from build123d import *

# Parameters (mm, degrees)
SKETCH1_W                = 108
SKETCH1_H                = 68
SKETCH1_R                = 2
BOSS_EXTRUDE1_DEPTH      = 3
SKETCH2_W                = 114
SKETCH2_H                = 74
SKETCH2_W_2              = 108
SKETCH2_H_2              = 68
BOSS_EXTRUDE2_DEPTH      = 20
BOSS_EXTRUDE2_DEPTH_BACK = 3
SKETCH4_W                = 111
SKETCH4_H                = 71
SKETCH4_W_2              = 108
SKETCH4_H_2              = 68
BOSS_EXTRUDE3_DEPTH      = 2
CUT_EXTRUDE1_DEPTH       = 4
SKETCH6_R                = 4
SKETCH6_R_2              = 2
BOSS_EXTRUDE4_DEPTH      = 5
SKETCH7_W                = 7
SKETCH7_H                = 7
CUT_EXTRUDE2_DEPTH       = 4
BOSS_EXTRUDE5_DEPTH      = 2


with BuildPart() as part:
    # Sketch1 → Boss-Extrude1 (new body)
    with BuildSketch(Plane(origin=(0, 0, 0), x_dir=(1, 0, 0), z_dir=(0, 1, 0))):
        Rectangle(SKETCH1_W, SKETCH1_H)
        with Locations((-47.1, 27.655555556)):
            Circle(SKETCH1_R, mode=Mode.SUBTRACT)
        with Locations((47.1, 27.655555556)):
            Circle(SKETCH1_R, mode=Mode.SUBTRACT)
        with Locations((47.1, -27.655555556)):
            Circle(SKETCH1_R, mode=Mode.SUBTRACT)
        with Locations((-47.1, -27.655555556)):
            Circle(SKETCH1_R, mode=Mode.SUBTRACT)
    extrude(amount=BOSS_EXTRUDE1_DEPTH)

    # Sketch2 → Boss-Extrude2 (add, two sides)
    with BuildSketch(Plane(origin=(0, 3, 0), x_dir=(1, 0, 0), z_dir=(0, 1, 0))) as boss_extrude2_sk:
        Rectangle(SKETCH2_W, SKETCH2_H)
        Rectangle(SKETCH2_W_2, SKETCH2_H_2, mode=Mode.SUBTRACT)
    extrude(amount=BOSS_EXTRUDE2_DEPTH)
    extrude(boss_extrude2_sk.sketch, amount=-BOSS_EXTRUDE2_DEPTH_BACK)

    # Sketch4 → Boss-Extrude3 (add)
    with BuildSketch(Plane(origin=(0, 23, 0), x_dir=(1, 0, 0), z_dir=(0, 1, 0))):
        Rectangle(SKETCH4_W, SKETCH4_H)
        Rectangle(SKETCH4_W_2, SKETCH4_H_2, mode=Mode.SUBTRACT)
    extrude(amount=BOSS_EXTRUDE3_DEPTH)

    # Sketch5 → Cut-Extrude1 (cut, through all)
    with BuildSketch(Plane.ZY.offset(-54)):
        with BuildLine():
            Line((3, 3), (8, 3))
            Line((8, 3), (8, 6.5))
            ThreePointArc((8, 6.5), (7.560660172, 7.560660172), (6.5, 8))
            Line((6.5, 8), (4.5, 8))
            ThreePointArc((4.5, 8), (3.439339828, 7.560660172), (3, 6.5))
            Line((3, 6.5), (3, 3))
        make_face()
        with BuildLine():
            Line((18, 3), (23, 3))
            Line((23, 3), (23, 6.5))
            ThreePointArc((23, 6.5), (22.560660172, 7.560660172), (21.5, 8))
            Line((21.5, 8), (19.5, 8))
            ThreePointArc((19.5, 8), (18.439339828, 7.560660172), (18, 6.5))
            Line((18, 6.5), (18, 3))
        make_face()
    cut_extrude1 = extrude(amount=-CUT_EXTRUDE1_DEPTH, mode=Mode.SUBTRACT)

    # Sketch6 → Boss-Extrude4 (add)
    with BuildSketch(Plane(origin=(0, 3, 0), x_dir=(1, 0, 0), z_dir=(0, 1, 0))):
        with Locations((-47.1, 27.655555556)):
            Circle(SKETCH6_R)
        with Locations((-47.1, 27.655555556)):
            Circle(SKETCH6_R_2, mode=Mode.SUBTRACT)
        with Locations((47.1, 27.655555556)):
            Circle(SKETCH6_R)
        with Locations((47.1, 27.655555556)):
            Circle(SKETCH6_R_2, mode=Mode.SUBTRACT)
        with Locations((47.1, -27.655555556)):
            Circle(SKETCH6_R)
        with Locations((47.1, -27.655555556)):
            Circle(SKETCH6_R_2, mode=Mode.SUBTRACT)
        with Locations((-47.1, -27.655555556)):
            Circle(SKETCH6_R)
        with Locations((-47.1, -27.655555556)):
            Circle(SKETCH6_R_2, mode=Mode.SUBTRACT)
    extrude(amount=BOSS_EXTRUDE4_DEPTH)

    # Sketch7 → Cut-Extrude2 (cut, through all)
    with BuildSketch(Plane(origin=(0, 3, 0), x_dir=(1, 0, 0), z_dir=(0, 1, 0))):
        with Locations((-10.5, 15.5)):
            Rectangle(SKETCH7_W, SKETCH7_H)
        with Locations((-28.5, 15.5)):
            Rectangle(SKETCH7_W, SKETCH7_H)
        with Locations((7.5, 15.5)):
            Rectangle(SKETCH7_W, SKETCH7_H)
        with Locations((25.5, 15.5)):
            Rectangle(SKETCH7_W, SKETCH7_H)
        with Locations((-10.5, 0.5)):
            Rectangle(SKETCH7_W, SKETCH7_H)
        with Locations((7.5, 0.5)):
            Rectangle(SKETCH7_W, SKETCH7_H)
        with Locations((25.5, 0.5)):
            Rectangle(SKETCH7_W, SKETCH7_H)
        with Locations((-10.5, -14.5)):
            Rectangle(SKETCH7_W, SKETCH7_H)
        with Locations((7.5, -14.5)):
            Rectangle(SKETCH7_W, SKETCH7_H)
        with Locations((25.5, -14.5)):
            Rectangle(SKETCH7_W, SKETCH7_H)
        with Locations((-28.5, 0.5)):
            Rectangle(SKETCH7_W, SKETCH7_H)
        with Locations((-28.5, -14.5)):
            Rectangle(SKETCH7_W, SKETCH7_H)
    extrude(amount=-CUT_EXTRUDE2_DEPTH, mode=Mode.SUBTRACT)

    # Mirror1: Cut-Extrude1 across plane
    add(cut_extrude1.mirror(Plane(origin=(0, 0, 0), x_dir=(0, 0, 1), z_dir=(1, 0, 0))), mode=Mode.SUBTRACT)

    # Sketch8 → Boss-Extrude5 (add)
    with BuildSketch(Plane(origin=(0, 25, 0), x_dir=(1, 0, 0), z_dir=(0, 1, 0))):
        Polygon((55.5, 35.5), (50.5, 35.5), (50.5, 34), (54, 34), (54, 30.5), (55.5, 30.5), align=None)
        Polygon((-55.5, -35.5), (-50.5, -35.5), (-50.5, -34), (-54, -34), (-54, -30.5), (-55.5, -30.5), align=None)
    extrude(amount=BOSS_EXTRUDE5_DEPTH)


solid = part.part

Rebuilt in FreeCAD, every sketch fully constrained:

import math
import FreeCAD as App
import Part
import Sketcher

V = App.Vector


def add_polygon(sketch, points):
    """Adds a closed chain of lines whose ends are joined by coincident constraints."""
    first, n = sketch.GeometryCount, len(points)
    for a, b in zip(points, points[1:] + points[:1]):
        sketch.addGeometry(Part.LineSegment(App.Vector(*a, 0), App.Vector(*b, 0)), False)
    for i in range(n):
        sketch.addConstraint(Sketcher.Constraint("Coincident", first + i, 2, first + (i + 1) % n, 1))

doc = App.newDocument("Part")
params = doc.addObject("Spreadsheet::Sheet", "Params")
for row, (alias, value) in enumerate([
    ("sketch1_diameter", "4 mm"),
    ("sketch1_width", "108 mm"),
    ("sketch1_height", "68 mm"),
    ("pad1_length", "3 mm"),
    ("sketch2_width", "114 mm"),
    ("sketch2_width2", "108 mm"),
    ("sketch2_height", "74 mm"),
    ("sketch2_height2", "68 mm"),
    ("pad2_length", "20 mm"),
    ("pad2_length2", "3 mm"),
    ("sketch3_width", "111 mm"),
    ("sketch3_width2", "108 mm"),
    ("sketch3_height", "71 mm"),
    ("sketch3_height2", "68 mm"),
    ("pad3_length", "2 mm"),
    ("sketch4_radius", "1.5 mm"),
    ("sketch4_height", "5 mm"),
    ("sketch4_width", "3.5 mm"),
    ("sketch5_diameter", "8 mm"),
    ("sketch5_diameter2", "4 mm"),
    ("pad4_length", "5 mm"),
    ("sketch6_width", "7 mm"),
    ("sketch7_width", "5 mm"),
    ("sketch7_width2", "3.5 mm"),
    ("pad5_length", "2 mm"),
], start=1):
    params.set(f"A{row}", alias)
    params.set(f"B{row}", "=" + value)
    params.setAlias(f"B{row}", alias)

body = doc.addObject("PartDesign::Body", "Body")

# Sketch on XZ plane
sketch1 = body.newObject("Sketcher::SketchObject", "Sketch")
sketch1.AttachmentSupport = (doc.getObject("XZ_Plane"), [""])
sketch1.MapMode = "FlatFace"
add_polygon(sketch1, [(-54, -34), (-54, 34), (54, 34), (54, -34)])  # lines 0-3
sketch1.addGeometry(Part.Circle(V(-47.1, 27.7, 0), V(0, 0, 1), 2), False)  # 4
sketch1.addGeometry(Part.Circle(V(47.1, 27.7, 0), V(0, 0, 1), 2), False)  # 5
sketch1.addGeometry(Part.Circle(V(-47.1, -27.7, 0), V(0, 0, 1), 2), False)  # 6
sketch1.addGeometry(Part.Circle(V(47.1, -27.7, 0), V(0, 0, 1), 2), False)  # 7
sketch1.addConstraint([
    Sketcher.Constraint("Vertical", 0),
    Sketcher.Constraint("Horizontal", 1),
    Sketcher.Constraint("Vertical", 2),
    Sketcher.Constraint("Horizontal", 3),
    Sketcher.Constraint("Equal", 4, 5),
    Sketcher.Constraint("Equal", 5, 6),
    Sketcher.Constraint("Equal", 6, 7),
    Sketcher.Constraint("Symmetric", 5, 3, 6, 3, -1, 1),
    Sketcher.Constraint("Symmetric", 4, 3, 7, 3, -1, 1),
    Sketcher.Constraint("Symmetric", 0, 2, 2, 2, -1, 1),
    Sketcher.Constraint("Symmetric", 4, 3, 5, 3, -2),
    Sketcher.Constraint("Diameter", 4, 4.0),
    Sketcher.Constraint("DistanceX", 1, 1, 1, 2, 108.0),
    Sketcher.Constraint("DistanceY", 0, 1, 0, 2, 68.0),
    Sketcher.Constraint("DistanceX", 4, 3, -1, 1, 47.1),
    Sketcher.Constraint("DistanceY", 6, 3, 4, 3, 55.311111),
])
sketch1.setExpression("Constraints[15]", "Params.sketch1_diameter")
sketch1.setExpression("Constraints[16]", "Params.sketch1_width")
sketch1.setExpression("Constraints[17]", "Params.sketch1_height")
pad1 = body.newObject("PartDesign::Pad", "Pad")
pad1.Profile = sketch1
pad1.setExpression("Length", "Params.pad1_length")
pad1.Reversed = True

# Sketch on XZ plane
sketch2 = body.newObject("Sketcher::SketchObject", "Sketch001")
sketch2.AttachmentSupport = (doc.getObject("XZ_Plane"), [""])
sketch2.MapMode = "FlatFace"
sketch2.AttachmentOffset = App.Placement(V(0, 0, -3), App.Rotation())
add_polygon(sketch2, [(-57, -37), (-57, 37), (57, 37), (57, -37)])  # lines 0-3
add_polygon(sketch2, [(54, 34), (-54, 34), (-54, -34), (54, -34)])  # lines 4-7
sketch2.addConstraint([
    Sketcher.Constraint("Vertical", 0),
    Sketcher.Constraint("Horizontal", 1),
    Sketcher.Constraint("Vertical", 2),
    Sketcher.Constraint("Horizontal", 3),
    Sketcher.Constraint("Horizontal", 4),
    Sketcher.Constraint("Vertical", 5),
    Sketcher.Constraint("Horizontal", 6),
    Sketcher.Constraint("Vertical", 7),
    Sketcher.Constraint("Symmetric", 0, 2, 2, 2, -1, 1),
    Sketcher.Constraint("Symmetric", 4, 2, 6, 2, -1, 1),
    Sketcher.Constraint("DistanceX", 1, 1, 1, 2, 114.0),
    Sketcher.Constraint("DistanceX", 4, 2, 4, 1, 108.0),
    Sketcher.Constraint("DistanceY", 0, 1, 0, 2, 74.0),
    Sketcher.Constraint("DistanceY", 5, 2, 5, 1, 68.0),
])
sketch2.setExpression("Constraints[18]", "Params.sketch2_width")
sketch2.setExpression("Constraints[19]", "Params.sketch2_width2")
sketch2.setExpression("Constraints[20]", "Params.sketch2_height")
sketch2.setExpression("Constraints[21]", "Params.sketch2_height2")
pad2 = body.newObject("PartDesign::Pad", "Pad001")
pad2.Profile = sketch2
pad2.Type = "TwoLengths"
pad2.setExpression("Length", "Params.pad2_length")
pad2.setExpression("Length2", "Params.pad2_length2")
pad2.Reversed = True

# Sketch on XZ plane
sketch3 = body.newObject("Sketcher::SketchObject", "Sketch002")
sketch3.AttachmentSupport = (doc.getObject("XZ_Plane"), [""])
sketch3.MapMode = "FlatFace"
sketch3.AttachmentOffset = App.Placement(V(0, 0, -23), App.Rotation())
add_polygon(sketch3, [(-56, -36), (-56, 36), (56, 36), (56, -36)])  # lines 0-3
add_polygon(sketch3, [(54, 34), (-54, 34), (-54, -34), (54, -34)])  # lines 4-7
sketch3.addConstraint([
    Sketcher.Constraint("Vertical", 0),
    Sketcher.Constraint("Horizontal", 1),
    Sketcher.Constraint("Vertical", 2),
    Sketcher.Constraint("Horizontal", 3),
    Sketcher.Constraint("Horizontal", 4),
    Sketcher.Constraint("Vertical", 5),
    Sketcher.Constraint("Horizontal", 6),
    Sketcher.Constraint("Vertical", 7),
    Sketcher.Constraint("Symmetric", 0, 2, 2, 2, -1, 1),
    Sketcher.Constraint("Symmetric", 4, 2, 6, 2, -1, 1),
    Sketcher.Constraint("DistanceX", 1, 1, 1, 2, 111.0),
    Sketcher.Constraint("DistanceX", 4, 2, 4, 1, 108.0),
    Sketcher.Constraint("DistanceY", 0, 1, 0, 2, 71.0),
    Sketcher.Constraint("DistanceY", 5, 2, 5, 1, 68.0),
])
sketch3.setExpression("Constraints[18]", "Params.sketch3_width")
sketch3.setExpression("Constraints[19]", "Params.sketch3_width2")
sketch3.setExpression("Constraints[20]", "Params.sketch3_height")
sketch3.setExpression("Constraints[21]", "Params.sketch3_height2")
pad3 = body.newObject("PartDesign::Pad", "Pad002")
pad3.Profile = sketch3
pad3.setExpression("Length", "Params.pad3_length")
pad3.Reversed = True

# Sketch on YZ plane
sketch4 = body.newObject("Sketcher::SketchObject", "Sketch003")
sketch4.AttachmentSupport = (doc.getObject("YZ_Plane"), [""])
sketch4.MapMode = "FlatFace"
sketch4.AttachmentOffset = App.Placement(V(0, 0, 54), App.Rotation())
sketch4.addGeometry([
    Part.LineSegment(V(3, 3, 0), V(3, 8, 0)),  # 0
    Part.LineSegment(V(3, 8, 0), V(6.5, 8, 0)),  # 1
    Part.ArcOfCircle(Part.Circle(V(6.5, 6.5, 0), V(0, 0, 1), 1.5), math.radians(0), math.radians(90)),  # 2
    Part.LineSegment(V(8, 6.5, 0), V(8, 4.5, 0)),  # 3
    Part.ArcOfCircle(Part.Circle(V(6.5, 4.5, 0), V(0, 0, 1), 1.5), math.radians(-90), math.radians(0)),  # 4
    Part.LineSegment(V(6.5, 3, 0), V(3, 3, 0)),  # 5
    Part.LineSegment(V(3, 18, 0), V(3, 23, 0)),  # 6
    Part.LineSegment(V(3, 23, 0), V(6.5, 23, 0)),  # 7
    Part.ArcOfCircle(Part.Circle(V(6.5, 21.5, 0), V(0, 0, 1), 1.5), math.radians(0), math.radians(90)),  # 8
    Part.LineSegment(V(8, 21.5, 0), V(8, 19.5, 0)),  # 9
    Part.ArcOfCircle(Part.Circle(V(6.5, 19.5, 0), V(0, 0, 1), 1.5), math.radians(-90), math.radians(0)),  # 10
    Part.LineSegment(V(6.5, 18, 0), V(3, 18, 0)),  # 11
], False)
sketch4.addConstraint([
    Sketcher.Constraint("Coincident", 0, 2, 1, 1),
    Sketcher.Constraint("Tangent", 1, 2, 2, 2),
    Sketcher.Constraint("Tangent", 2, 1, 3, 1),
    Sketcher.Constraint("Tangent", 3, 2, 4, 2),
    Sketcher.Constraint("Tangent", 4, 1, 5, 1),
    Sketcher.Constraint("Coincident", 5, 2, 0, 1),
    Sketcher.Constraint("Coincident", 6, 2, 7, 1),
    Sketcher.Constraint("Tangent", 7, 2, 8, 2),
    Sketcher.Constraint("Tangent", 8, 1, 9, 1),
    Sketcher.Constraint("Tangent", 9, 2, 10, 2),
    Sketcher.Constraint("Tangent", 10, 1, 11, 1),
    Sketcher.Constraint("Coincident", 11, 2, 6, 1),
    Sketcher.Constraint("Vertical", 0),
    Sketcher.Constraint("Horizontal", 1),
    Sketcher.Constraint("Vertical", 3),
    Sketcher.Constraint("Horizontal", 5),
    Sketcher.Constraint("Vertical", 6),
    Sketcher.Constraint("Horizontal", 7),
    Sketcher.Constraint("Vertical", 9),
    Sketcher.Constraint("Horizontal", 11),
    Sketcher.Constraint("Equal", 2, 4),
    Sketcher.Constraint("Equal", 4, 8),
    Sketcher.Constraint("Equal", 8, 10),
    Sketcher.Constraint("Vertical", 4, 3, 8, 3),
    Sketcher.Constraint("Vertical", 5, 2, 6, 2),
    Sketcher.Constraint("Equal", 0, 6),
    Sketcher.Constraint("Radius", 2, 1.5),
    Sketcher.Constraint("DistanceY", 0, 1, 0, 2, 5.0),
    Sketcher.Constraint("DistanceX", 1, 1, 1, 2, 3.5),
    Sketcher.Constraint("DistanceX", -1, 1, 0, 2, 3.0),
    Sketcher.Constraint("DistanceY", -1, 1, 0, 2, 8.0),
    Sketcher.Constraint("DistanceY", -1, 1, 6, 2, 23.0),
])
sketch4.setExpression("Constraints[26]", "Params.sketch4_radius")
sketch4.setExpression("Constraints[27]", "Params.sketch4_height")
sketch4.setExpression("Constraints[28]", "Params.sketch4_width")
pocket1 = body.newObject("PartDesign::Pocket", "Pocket")
pocket1.Profile = sketch4
pocket1.Type = "ThroughAll"
pocket1.Reversed = True

# Sketch on XZ plane
sketch5 = body.newObject("Sketcher::SketchObject", "Sketch004")
sketch5.AttachmentSupport = (doc.getObject("XZ_Plane"), [""])
sketch5.MapMode = "FlatFace"
sketch5.AttachmentOffset = App.Placement(V(0, 0, -3), App.Rotation())
sketch5.addGeometry([
    Part.Circle(V(-47.1, -27.7, 0), V(0, 0, 1), 4),  # 0
    Part.Circle(V(-47.1, -27.7, 0), V(0, 0, 1), 2),  # 1
    Part.Circle(V(47.1, -27.7, 0), V(0, 0, 1), 4),  # 2
    Part.Circle(V(47.1, -27.7, 0), V(0, 0, 1), 2),  # 3
    Part.Circle(V(47.1, 27.7, 0), V(0, 0, 1), 4),  # 4
    Part.Circle(V(47.1, 27.7, 0), V(0, 0, 1), 2),  # 5
    Part.Circle(V(-47.1, 27.7, 0), V(0, 0, 1), 4),  # 6
    Part.Circle(V(-47.1, 27.7, 0), V(0, 0, 1), 2),  # 7
], False)
sketch5.addConstraint([
    Sketcher.Constraint("Coincident", 1, 3, 0, 3),
    Sketcher.Constraint("Coincident", 3, 3, 2, 3),
    Sketcher.Constraint("Coincident", 5, 3, 4, 3),
    Sketcher.Constraint("Coincident", 7, 3, 6, 3),
    Sketcher.Constraint("Equal", 0, 2),
    Sketcher.Constraint("Equal", 1, 3),
    Sketcher.Constraint("Equal", 2, 4),
    Sketcher.Constraint("Equal", 3, 5),
    Sketcher.Constraint("Equal", 4, 6),
    Sketcher.Constraint("Equal", 5, 7),
    Sketcher.Constraint("Symmetric", 0, 3, 4, 3, -1, 1),
    Sketcher.Constraint("Symmetric", 2, 3, 6, 3, -1, 1),
    Sketcher.Constraint("Symmetric", 0, 3, 2, 3, -2),
    Sketcher.Constraint("Diameter", 0, 8.0),
    Sketcher.Constraint("Diameter", 1, 4.0),
    Sketcher.Constraint("DistanceX", 0, 3, -1, 1, 47.1),
    Sketcher.Constraint("DistanceY", 2, 3, 4, 3, 55.311111),
])
sketch5.setExpression("Constraints[13]", "Params.sketch5_diameter")
sketch5.setExpression("Constraints[14]", "Params.sketch5_diameter2")
pad4 = body.newObject("PartDesign::Pad", "Pad003")
pad4.Profile = sketch5
pad4.setExpression("Length", "Params.pad4_length")
pad4.Reversed = True

# Sketch on XZ plane
sketch6 = body.newObject("Sketcher::SketchObject", "Sketch005")
sketch6.AttachmentSupport = (doc.getObject("XZ_Plane"), [""])
sketch6.MapMode = "FlatFace"
sketch6.AttachmentOffset = App.Placement(V(0, 0, -3), App.Rotation())
add_polygon(sketch6, [(-14, -19), (-14, -12), (-7, -12), (-7, -19)])  # lines 0-3
add_polygon(sketch6, [(-32, -19), (-32, -12), (-25, -12), (-25, -19)])  # lines 4-7
add_polygon(sketch6, [(4, -19), (4, -12), (11, -12), (11, -19)])  # lines 8-11
add_polygon(sketch6, [(22, -19), (22, -12), (29, -12), (29, -19)])  # lines 12-15
add_polygon(sketch6, [(-14, -4), (-14, 3), (-7, 3), (-7, -4)])  # lines 16-19
add_polygon(sketch6, [(4, -4), (4, 3), (11, 3), (11, -4)])  # lines 20-23
add_polygon(sketch6, [(22, -4), (22, 3), (29, 3), (29, -4)])  # lines 24-27
add_polygon(sketch6, [(-14, 11), (-14, 18), (-7, 18), (-7, 11)])  # lines 28-31
add_polygon(sketch6, [(4, 11), (4, 18), (11, 18), (11, 11)])  # lines 32-35
add_polygon(sketch6, [(22, 11), (22, 18), (29, 18), (29, 11)])  # lines 36-39
add_polygon(sketch6, [(-32, -4), (-32, 3), (-25, 3), (-25, -4)])  # lines 40-43
add_polygon(sketch6, [(-32, 11), (-32, 18), (-25, 18), (-25, 11)])  # lines 44-47
sketch6.addConstraint([
    Sketcher.Constraint("Vertical", 0),
    Sketcher.Constraint("Horizontal", 1),
    Sketcher.Constraint("Vertical", 2),
    Sketcher.Constraint("Horizontal", 3),
    Sketcher.Constraint("Vertical", 4),
    Sketcher.Constraint("Horizontal", 5),
    Sketcher.Constraint("Vertical", 6),
    Sketcher.Constraint("Horizontal", 7),
    Sketcher.Constraint("Vertical", 8),
    Sketcher.Constraint("Horizontal", 9),
    Sketcher.Constraint("Vertical", 10),
    Sketcher.Constraint("Horizontal", 11),
    Sketcher.Constraint("Vertical", 12),
    Sketcher.Constraint("Horizontal", 13),
    Sketcher.Constraint("Vertical", 14),
    Sketcher.Constraint("Horizontal", 15),
    Sketcher.Constraint("Vertical", 16),
    Sketcher.Constraint("Horizontal", 17),
    Sketcher.Constraint("Vertical", 18),
    Sketcher.Constraint("Horizontal", 19),
    Sketcher.Constraint("Vertical", 20),
    Sketcher.Constraint("Horizontal", 21),
    Sketcher.Constraint("Vertical", 22),
    Sketcher.Constraint("Horizontal", 23),
    Sketcher.Constraint("Vertical", 24),
    Sketcher.Constraint("Horizontal", 25),
    Sketcher.Constraint("Vertical", 26),
    Sketcher.Constraint("Horizontal", 27),
    Sketcher.Constraint("Vertical", 28),
    Sketcher.Constraint("Horizontal", 29),
    Sketcher.Constraint("Vertical", 30),
    Sketcher.Constraint("Horizontal", 31),
    Sketcher.Constraint("Vertical", 32),
    Sketcher.Constraint("Horizontal", 33),
    Sketcher.Constraint("Vertical", 34),
    Sketcher.Constraint("Horizontal", 35),
    Sketcher.Constraint("Vertical", 36),
    Sketcher.Constraint("Horizontal", 37),
    Sketcher.Constraint("Vertical", 38),
    Sketcher.Constraint("Horizontal", 39),
    Sketcher.Constraint("Vertical", 40),
    Sketcher.Constraint("Horizontal", 41),
    Sketcher.Constraint("Vertical", 42),
    Sketcher.Constraint("Horizontal", 43),
    Sketcher.Constraint("Vertical", 44),
    Sketcher.Constraint("Horizontal", 45),
    Sketcher.Constraint("Vertical", 46),
    Sketcher.Constraint("Horizontal", 47),
    Sketcher.Constraint("Horizontal", 1, 2, 4, 2),
    Sketcher.Constraint("Horizontal", 3, 2, 6, 2),
    Sketcher.Constraint("Horizontal", 5, 2, 8, 2),
    Sketcher.Constraint("Horizontal", 7, 2, 10, 2),
    Sketcher.Constraint("Horizontal", 9, 2, 12, 2),
    Sketcher.Constraint("Horizontal", 11, 2, 14, 2),
    Sketcher.Constraint("Horizontal", 17, 2, 20, 2),
    Sketcher.Constraint("Horizontal", 19, 2, 22, 2),
    Sketcher.Constraint("Horizontal", 21, 2, 24, 2),
    Sketcher.Constraint("Horizontal", 23, 2, 26, 2),
    Sketcher.Constraint("Horizontal", 29, 2, 32, 2),
    Sketcher.Constraint("Horizontal", 31, 2, 34, 2),
    Sketcher.Constraint("Horizontal", 33, 2, 36, 2),
    Sketcher.Constraint("Horizontal", 35, 2, 38, 2),
    Sketcher.Constraint("Horizontal", 25, 2, 40, 2),
    Sketcher.Constraint("Horizontal", 27, 2, 42, 2),
    Sketcher.Constraint("Horizontal", 37, 2, 44, 2),
    Sketcher.Constraint("Horizontal", 39, 2, 46, 2),
    Sketcher.Constraint("Vertical", 3, 2, 16, 2),
    Sketcher.Constraint("Vertical", 2, 2, 17, 2),
    Sketcher.Constraint("Vertical", 11, 2, 20, 2),
    Sketcher.Constraint("Vertical", 10, 2, 21, 2),
    Sketcher.Constraint("Vertical", 15, 2, 24, 2),
    Sketcher.Constraint("Vertical", 14, 2, 25, 2),
    Sketcher.Constraint("Vertical", 19, 2, 28, 2),
    Sketcher.Constraint("Vertical", 18, 2, 29, 2),
    Sketcher.Constraint("Vertical", 23, 2, 32, 2),
    Sketcher.Constraint("Vertical", 22, 2, 33, 2),
    Sketcher.Constraint("Vertical", 27, 2, 36, 2),
    Sketcher.Constraint("Vertical", 26, 2, 37, 2),
    Sketcher.Constraint("Vertical", 7, 2, 40, 2),
    Sketcher.Constraint("Vertical", 6, 2, 41, 2),
    Sketcher.Constraint("Vertical", 43, 2, 44, 2),
    Sketcher.Constraint("Vertical", 42, 2, 45, 2),
    Sketcher.Constraint("Equal", 3, 5),
    Sketcher.Constraint("Equal", 7, 9),
    Sketcher.Constraint("Equal", 11, 13),
    Sketcher.Constraint("Equal", 47, 0),
    Sketcher.Constraint("Equal", 14, 16),
    Sketcher.Constraint("Equal", 26, 28),
    Sketcher.Constraint("DistanceX", 1, 1, 1, 2, 7.0),
    Sketcher.Constraint("DistanceX", 0, 2, -1, 1, 14.0),
    Sketcher.Constraint("DistanceY", 0, 2, -1, 1, 12.0),
    Sketcher.Constraint("DistanceX", 4, 2, -1, 1, 32.0),
    Sketcher.Constraint("DistanceX", -1, 1, 8, 2, 4.0),
    Sketcher.Constraint("DistanceX", -1, 1, 12, 2, 22.0),
    Sketcher.Constraint("DistanceY", -1, 1, 16, 2, 3.0),
    Sketcher.Constraint("DistanceY", -1, 1, 28, 2, 18.0),
])
sketch6.setExpression("Constraints[136]", "Params.sketch6_width")
pocket2 = body.newObject("PartDesign::Pocket", "Pocket001")
pocket2.Profile = sketch6
pocket2.Type = "ThroughAll"
pocket2.Reversed = True
doc.recompute()

mirrored = body.newObject("PartDesign::Mirrored", "Mirrored")
mirrored.Originals = [pocket1]
mirrored.MirrorPlane = (doc.getObject("YZ_Plane"), [""])
body.Tip = mirrored

# Sketch on XZ plane
sketch7 = body.newObject("Sketcher::SketchObject", "Sketch006")
sketch7.AttachmentSupport = (doc.getObject("XZ_Plane"), [""])
sketch7.MapMode = "FlatFace"
sketch7.AttachmentOffset = App.Placement(V(0, 0, -25), App.Rotation())
add_polygon(sketch7, [(55.5, -35.5), (50.5, -35.5), (50.5, -34), (54, -34), (54, -30.5), (55.5, -30.5)])  # lines 0-5
add_polygon(sketch7, [(-55.5, 35.5), (-50.5, 35.5), (-50.5, 34), (-54, 34), (-54, 30.5), (-55.5, 30.5)])  # lines 6-11
sketch7.addConstraint([
    Sketcher.Constraint("Horizontal", 0),
    Sketcher.Constraint("Vertical", 1),
    Sketcher.Constraint("Horizontal", 2),
    Sketcher.Constraint("Vertical", 3),
    Sketcher.Constraint("Horizontal", 4),
    Sketcher.Constraint("Vertical", 5),
    Sketcher.Constraint("Horizontal", 6),
    Sketcher.Constraint("Vertical", 7),
    Sketcher.Constraint("Horizontal", 8),
    Sketcher.Constraint("Vertical", 9),
    Sketcher.Constraint("Horizontal", 10),
    Sketcher.Constraint("Vertical", 11),
    Sketcher.Constraint("Symmetric", 0, 2, 6, 2, -1, 1),
    Sketcher.Constraint("Symmetric", 2, 2, 8, 2, -1, 1),
    Sketcher.Constraint("Symmetric", 4, 2, 10, 2, -1, 1),
    Sketcher.Constraint("Equal", 10, 1),
    Sketcher.Constraint("Equal", 8, 3),
    Sketcher.Constraint("DistanceX", 0, 2, 0, 1, 5.0),
    Sketcher.Constraint("DistanceX", 2, 1, 2, 2, 3.5),
    Sketcher.Constraint("DistanceY", 1, 2, -1, 1, 34.0),
    Sketcher.Constraint("DistanceX", -1, 1, 2, 2, 54.0),
])
sketch7.setExpression("Constraints[29]", "Params.sketch7_width")
sketch7.setExpression("Constraints[30]", "Params.sketch7_width2")
pad5 = body.newObject("PartDesign::Pad", "Pad004")
pad5.Profile = sketch7
pad5.setExpression("Length", "Params.pad5_length")
pad5.Reversed = True

doc.recompute()
